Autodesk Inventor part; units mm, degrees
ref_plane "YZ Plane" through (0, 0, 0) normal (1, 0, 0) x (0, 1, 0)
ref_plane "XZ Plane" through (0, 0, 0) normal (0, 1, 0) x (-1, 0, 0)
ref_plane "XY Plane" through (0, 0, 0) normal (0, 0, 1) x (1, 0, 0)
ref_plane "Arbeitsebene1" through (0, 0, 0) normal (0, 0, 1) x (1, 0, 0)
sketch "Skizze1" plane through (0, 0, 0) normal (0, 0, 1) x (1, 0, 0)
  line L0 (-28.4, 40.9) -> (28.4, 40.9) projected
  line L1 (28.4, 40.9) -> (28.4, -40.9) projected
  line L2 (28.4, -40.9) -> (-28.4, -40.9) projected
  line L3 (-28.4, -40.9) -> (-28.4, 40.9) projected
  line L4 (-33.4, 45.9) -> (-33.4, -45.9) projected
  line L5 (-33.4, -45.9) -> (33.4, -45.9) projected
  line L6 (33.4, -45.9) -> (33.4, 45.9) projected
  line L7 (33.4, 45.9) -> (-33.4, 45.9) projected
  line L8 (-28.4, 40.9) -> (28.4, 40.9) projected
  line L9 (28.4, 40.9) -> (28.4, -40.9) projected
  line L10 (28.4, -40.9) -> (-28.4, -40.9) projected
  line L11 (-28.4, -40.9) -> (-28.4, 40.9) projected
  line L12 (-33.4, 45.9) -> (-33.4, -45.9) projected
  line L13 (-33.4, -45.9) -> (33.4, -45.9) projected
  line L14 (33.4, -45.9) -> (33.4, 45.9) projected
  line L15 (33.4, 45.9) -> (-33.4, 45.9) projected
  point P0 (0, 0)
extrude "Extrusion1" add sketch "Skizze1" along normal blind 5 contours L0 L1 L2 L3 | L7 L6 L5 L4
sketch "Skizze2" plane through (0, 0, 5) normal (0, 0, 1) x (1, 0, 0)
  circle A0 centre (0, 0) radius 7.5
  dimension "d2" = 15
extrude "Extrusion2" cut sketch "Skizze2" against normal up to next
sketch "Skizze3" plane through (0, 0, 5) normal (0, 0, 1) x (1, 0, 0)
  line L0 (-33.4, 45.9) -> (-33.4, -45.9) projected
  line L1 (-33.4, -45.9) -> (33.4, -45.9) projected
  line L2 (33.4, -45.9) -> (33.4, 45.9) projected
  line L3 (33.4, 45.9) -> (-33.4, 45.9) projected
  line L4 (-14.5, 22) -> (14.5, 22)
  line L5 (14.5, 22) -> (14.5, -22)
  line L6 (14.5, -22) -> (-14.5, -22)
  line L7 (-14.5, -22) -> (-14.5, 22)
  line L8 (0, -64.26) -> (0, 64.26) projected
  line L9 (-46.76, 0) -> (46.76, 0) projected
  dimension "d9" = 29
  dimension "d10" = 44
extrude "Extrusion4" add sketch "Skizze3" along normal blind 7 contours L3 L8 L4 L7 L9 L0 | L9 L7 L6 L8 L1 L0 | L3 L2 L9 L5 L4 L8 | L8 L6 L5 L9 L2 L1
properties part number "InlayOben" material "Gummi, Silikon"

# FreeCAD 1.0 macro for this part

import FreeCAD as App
import Part
import Sketcher

V = App.Vector
Q = App.Units.Quantity


def add_polygon(sketch, points):
    """Adds a closed chain of lines whose ends are joined by coincident constraints."""
    first, n = sketch.GeometryCount, len(points)
    for a, b in zip(points, points[1:] + points[:1]):
        sketch.addGeometry(Part.LineSegment(App.Vector(*a, 0), App.Vector(*b, 0)), False)
    for i in range(n):
        sketch.addConstraint(Sketcher.Constraint("Coincident", first + i, 2, first + (i + 1) % n, 1))

doc = App.newDocument("Part")
body = doc.addObject("PartDesign::Body", "Body")

# Sketch on XY plane
sketch1 = doc.addObject("Sketcher::SketchObject", "Sketch")
body.addObject(sketch1)
sketch1.AttachmentSupport = (doc.XY_Plane, [""])
sketch1.MapMode = "FlatFace"
add_polygon(sketch1, [(33, 46), (-33, 46), (-33, -46), (33, -46)])  # lines 0-3
sketch1.addConstraint(Sketcher.Constraint("Horizontal", 0))
sketch1.addConstraint(Sketcher.Constraint("Vertical", 1))
sketch1.addConstraint(Sketcher.Constraint("Horizontal", 2))
sketch1.addConstraint(Sketcher.Constraint("Vertical", 3))
sketch1.addConstraint(Sketcher.Constraint("Symmetric", 0, 2, 2, 2, -1, 1))
sketch1.addConstraint(Sketcher.Constraint("DistanceX", 0, 2, 0, 1, Q("66.8 mm")))
sketch1.addConstraint(Sketcher.Constraint("DistanceY", 1, 2, 1, 1, Q("91.8 mm")))
pad1 = doc.addObject("PartDesign::Pad", "Pad")
body.addObject(pad1)
pad1.Profile = sketch1
pad1.Length = 5

# Sketch on XY plane
sketch2 = doc.addObject("Sketcher::SketchObject", "Sketch001")
body.addObject(sketch2)
sketch2.AttachmentSupport = (doc.XY_Plane, [""])
sketch2.MapMode = "FlatFace"
sketch2.AttachmentOffset = App.Placement(V(0, 0, 5), App.Rotation())
sketch2.addGeometry(Part.Circle(V(0, 0, 0), V(0, 0, 1), 8), False)
sketch2.addConstraint(Sketcher.Constraint("Coincident", 0, 3, -1, 1))
sketch2.addConstraint(Sketcher.Constraint("Diameter", 0, Q("15 mm")))
pocket1 = doc.addObject("PartDesign::Pocket", "Pocket")
body.addObject(pocket1)
pocket1.Profile = sketch2
pocket1.Type = "UpToFirst"

# Sketch on XY plane
sketch3 = doc.addObject("Sketcher::SketchObject", "Sketch002")
body.addObject(sketch3)
sketch3.AttachmentSupport = (doc.XY_Plane, [""])
sketch3.MapMode = "FlatFace"
sketch3.AttachmentOffset = App.Placement(V(0, 0, 5), App.Rotation())
add_polygon(sketch3, [(-33, 46), (-33, -46), (33, -46), (33, 46)])  # lines 0-3
add_polygon(sketch3, [(-14, 22), (14, 22), (14, -22), (-14, -22)])  # lines 4-7
sketch3.addConstraint(Sketcher.Constraint("Vertical", 0))
sketch3.addConstraint(Sketcher.Constraint("Horizontal", 1))
sketch3.addConstraint(Sketcher.Constraint("Vertical", 2))
sketch3.addConstraint(Sketcher.Constraint("Horizontal", 3))
sketch3.addConstraint(Sketcher.Constraint("Horizontal", 4))
sketch3.addConstraint(Sketcher.Constraint("Vertical", 5))
sketch3.addConstraint(Sketcher.Constraint("Horizontal", 6))
sketch3.addConstraint(Sketcher.Constraint("Vertical", 7))
sketch3.addConstraint(Sketcher.Constraint("Symmetric", 0, 2, 2, 2, -1, 1))
sketch3.addConstraint(Sketcher.Constraint("Symmetric", 4, 2, 6, 2, -1, 1))
sketch3.addConstraint(Sketcher.Constraint("DistanceX", 4, 1, 4, 2, Q("29 mm")))
sketch3.addConstraint(Sketcher.Constraint("DistanceY", 5, 2, 5, 1, Q("44 mm")))
sketch3.addConstraint(Sketcher.Constraint("DistanceX", 1, 1, 1, 2, Q("66.8 mm")))
sketch3.addConstraint(Sketcher.Constraint("DistanceY", 0, 2, 0, 1, Q("91.8 mm")))
pad2 = doc.addObject("PartDesign::Pad", "Pad001")
body.addObject(pad2)
pad2.Profile = sketch3
pad2.Length = 7

doc.recompute()
